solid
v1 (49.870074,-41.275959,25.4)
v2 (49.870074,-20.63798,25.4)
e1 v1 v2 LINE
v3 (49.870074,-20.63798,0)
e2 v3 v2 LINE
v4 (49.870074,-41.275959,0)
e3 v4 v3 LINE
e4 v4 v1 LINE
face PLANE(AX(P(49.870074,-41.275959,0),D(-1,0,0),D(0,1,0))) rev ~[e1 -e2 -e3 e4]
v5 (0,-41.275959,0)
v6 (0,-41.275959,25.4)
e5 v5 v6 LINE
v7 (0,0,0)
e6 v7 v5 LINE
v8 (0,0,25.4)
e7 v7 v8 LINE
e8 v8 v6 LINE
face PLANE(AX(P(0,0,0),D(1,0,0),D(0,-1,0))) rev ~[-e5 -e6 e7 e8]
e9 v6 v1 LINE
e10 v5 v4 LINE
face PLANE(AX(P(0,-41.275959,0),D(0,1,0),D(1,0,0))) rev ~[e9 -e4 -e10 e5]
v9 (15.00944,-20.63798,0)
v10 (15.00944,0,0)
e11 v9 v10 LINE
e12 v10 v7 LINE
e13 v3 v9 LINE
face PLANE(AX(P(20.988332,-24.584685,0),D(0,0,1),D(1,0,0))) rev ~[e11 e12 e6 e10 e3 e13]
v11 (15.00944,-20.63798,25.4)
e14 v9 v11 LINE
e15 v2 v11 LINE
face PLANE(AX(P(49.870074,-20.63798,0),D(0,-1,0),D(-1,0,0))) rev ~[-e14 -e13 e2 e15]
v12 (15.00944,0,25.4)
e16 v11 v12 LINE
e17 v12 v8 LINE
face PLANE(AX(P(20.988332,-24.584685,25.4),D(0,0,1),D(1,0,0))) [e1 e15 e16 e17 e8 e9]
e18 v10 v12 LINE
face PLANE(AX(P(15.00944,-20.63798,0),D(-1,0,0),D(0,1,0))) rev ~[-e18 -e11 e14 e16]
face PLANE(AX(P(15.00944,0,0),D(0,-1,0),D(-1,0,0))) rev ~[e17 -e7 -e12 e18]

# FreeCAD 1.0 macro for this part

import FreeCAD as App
import Part
import Sketcher

V = App.Vector
Q = App.Units.Quantity

doc = App.newDocument("Part")
body = doc.addObject("PartDesign::Body", "Body")

sketch1 = doc.addObject("Sketcher::SketchObject", "Sketch")
body.addObject(sketch1)
sketch1.AttachmentSupport = (doc.XY_Plane, [""])
sketch1.MapMode = "FlatFace"
sketch1.addGeometry(Part.LineSegment(V(15, 0, 0), V(0, 0, 0)), False)
sketch1.addGeometry(Part.LineSegment(V(0, 0, 0), V(0, -41, 0)), False)
sketch1.addGeometry(Part.LineSegment(V(0, -41, 0), V(50, -41, 0)), False)
sketch1.addGeometry(Part.LineSegment(V(50, -41, 0), V(50, -21, 0)), False)
sketch1.addGeometry(Part.LineSegment(V(50, -21, 0), V(15, -21, 0)), False)
sketch1.addGeometry(Part.LineSegment(V(15, -21, 0), V(15, 0, 0)), False)
sketch1.addConstraint(Sketcher.Constraint("Coincident", 0, 2, 1, 1))
sketch1.addConstraint(Sketcher.Constraint("Coincident", 1, 2, 2, 1))
sketch1.addConstraint(Sketcher.Constraint("Coincident", 2, 2, 3, 1))
sketch1.addConstraint(Sketcher.Constraint("Coincident", 3, 2, 4, 1))
sketch1.addConstraint(Sketcher.Constraint("Coincident", 4, 2, 5, 1))
sketch1.addConstraint(Sketcher.Constraint("Coincident", 5, 2, 0, 1))
sketch1.addConstraint(Sketcher.Constraint("Horizontal", 0))
sketch1.addConstraint(Sketcher.Constraint("Vertical", 1))
sketch1.addConstraint(Sketcher.Constraint("Horizontal", 2))
sketch1.addConstraint(Sketcher.Constraint("Vertical", 3))
sketch1.addConstraint(Sketcher.Constraint("Horizontal", 4))
sketch1.addConstraint(Sketcher.Constraint("Vertical", 5))
sketch1.addConstraint(Sketcher.Constraint("Coincident", 0, 2, -1, 1))
sketch1.addConstraint(Sketcher.Constraint("Equal", 3, 5))
sketch1.addConstraint(Sketcher.Constraint("DistanceX", 0, 2, 0, 1, 15.00944))
sketch1.addConstraint(Sketcher.Constraint("DistanceY", 1, 2, 1, 1, 41.275959))
sketch1.addConstraint(Sketcher.Constraint("DistanceX", 2, 1, 2, 2, 49.870074))
pad1 = doc.addObject("PartDesign::Pad", "Pad")
body.addObject(pad1)
pad1.Profile = sketch1
pad1.Length = Q("1 in")

sketch2 = doc.addObject("Sketcher::SketchObject", "Sketch001")
body.addObject(sketch2)
sketch2.AttachmentSupport = (doc.XY_Plane, [""])
sketch2.MapMode = "FlatFace"
sketch2.AttachmentOffset = App.Placement(V(0, 0, 1 * 25.4), App.Rotation())
sketch2.addGeometry(Part.LineSegment(V(15, 0, 0), V(0, 0, 0)), False)
sketch2.addGeometry(Part.LineSegment(V(0, 0, 0), V(0, -41, 0)), False)
sketch2.addGeometry(Part.LineSegment(V(0, -41, 0), V(50, -41, 0)), False)
sketch2.addGeometry(Part.LineSegment(V(50, -41, 0), V(50, -21, 0)), False)
sketch2.addGeometry(Part.LineSegment(V(50, -21, 0), V(15, -21, 0)), False)
sketch2.addGeometry(Part.LineSegment(V(15, -21, 0), V(15, 0, 0)), False)
sketch2.addConstraint(Sketcher.Constraint("Coincident", 0, 2, 1, 1))
sketch2.addConstraint(Sketcher.Constraint("Coincident", 1, 2, 2, 1))
sketch2.addConstraint(Sketcher.Constraint("Coincident", 2, 2, 3, 1))
sketch2.addConstraint(Sketcher.Constraint("Coincident", 3, 2, 4, 1))
sketch2.addConstraint(Sketcher.Constraint("Coincident", 4, 2, 5, 1))
sketch2.addConstraint(Sketcher.Constraint("Coincident", 5, 2, 0, 1))
sketch2.addConstraint(Sketcher.Constraint("Horizontal", 0))
sketch2.addConstraint(Sketcher.Constraint("Vertical", 1))
sketch2.addConstraint(Sketcher.Constraint("Horizontal", 2))
sketch2.addConstraint(Sketcher.Constraint("Vertical", 3))
sketch2.addConstraint(Sketcher.Constraint("Horizontal", 4))
sketch2.addConstraint(Sketcher.Constraint("Vertical", 5))
sketch2.addConstraint(Sketcher.Constraint("Coincident", 0, 2, -1, 1))
sketch2.addConstraint(Sketcher.Constraint("Equal", 3, 5))
sketch2.addConstraint(Sketcher.Constraint("DistanceX", 0, 2, 0, 1, 15.00944))
sketch2.addConstraint(Sketcher.Constraint("DistanceY", 1, 2, 1, 1, 41.275959))
sketch2.addConstraint(Sketcher.Constraint("DistanceX", 2, 1, 2, 2, 49.870074))

sketch3 = doc.addObject("Sketcher::SketchObject", "Sketch002")
body.addObject(sketch3)
sketch3.AttachmentSupport = (doc.XZ_Plane, [""])
sketch3.MapMode = "FlatFace"
sketch3.AttachmentOffset = App.Placement(V(0, 0, 41.275959), App.Rotation())
sketch3.addGeometry(Part.LineSegment(V(50, 25, 0), V(50, 0, 0)), False)
sketch3.addConstraint(Sketcher.Constraint("Vertical", 0))
sketch3.addConstraint(Sketcher.Constraint("PointOnObject", 0, 2, -1))
sketch3.addConstraint(Sketcher.Constraint("DistanceY", 0, 2, 0, 1, Q("1 in")))
sketch3.addConstraint(Sketcher.Constraint("DistanceX", -1, 1, 0, 1, 49.870074))
doc.recompute()

additivepipe = doc.addObject("PartDesign::AdditivePipe", "AdditivePipe")
body.addObject(additivepipe)
additivepipe.Profile = sketch2
additivepipe.Spine = (sketch3, ["Edge1"])

doc.recompute()
